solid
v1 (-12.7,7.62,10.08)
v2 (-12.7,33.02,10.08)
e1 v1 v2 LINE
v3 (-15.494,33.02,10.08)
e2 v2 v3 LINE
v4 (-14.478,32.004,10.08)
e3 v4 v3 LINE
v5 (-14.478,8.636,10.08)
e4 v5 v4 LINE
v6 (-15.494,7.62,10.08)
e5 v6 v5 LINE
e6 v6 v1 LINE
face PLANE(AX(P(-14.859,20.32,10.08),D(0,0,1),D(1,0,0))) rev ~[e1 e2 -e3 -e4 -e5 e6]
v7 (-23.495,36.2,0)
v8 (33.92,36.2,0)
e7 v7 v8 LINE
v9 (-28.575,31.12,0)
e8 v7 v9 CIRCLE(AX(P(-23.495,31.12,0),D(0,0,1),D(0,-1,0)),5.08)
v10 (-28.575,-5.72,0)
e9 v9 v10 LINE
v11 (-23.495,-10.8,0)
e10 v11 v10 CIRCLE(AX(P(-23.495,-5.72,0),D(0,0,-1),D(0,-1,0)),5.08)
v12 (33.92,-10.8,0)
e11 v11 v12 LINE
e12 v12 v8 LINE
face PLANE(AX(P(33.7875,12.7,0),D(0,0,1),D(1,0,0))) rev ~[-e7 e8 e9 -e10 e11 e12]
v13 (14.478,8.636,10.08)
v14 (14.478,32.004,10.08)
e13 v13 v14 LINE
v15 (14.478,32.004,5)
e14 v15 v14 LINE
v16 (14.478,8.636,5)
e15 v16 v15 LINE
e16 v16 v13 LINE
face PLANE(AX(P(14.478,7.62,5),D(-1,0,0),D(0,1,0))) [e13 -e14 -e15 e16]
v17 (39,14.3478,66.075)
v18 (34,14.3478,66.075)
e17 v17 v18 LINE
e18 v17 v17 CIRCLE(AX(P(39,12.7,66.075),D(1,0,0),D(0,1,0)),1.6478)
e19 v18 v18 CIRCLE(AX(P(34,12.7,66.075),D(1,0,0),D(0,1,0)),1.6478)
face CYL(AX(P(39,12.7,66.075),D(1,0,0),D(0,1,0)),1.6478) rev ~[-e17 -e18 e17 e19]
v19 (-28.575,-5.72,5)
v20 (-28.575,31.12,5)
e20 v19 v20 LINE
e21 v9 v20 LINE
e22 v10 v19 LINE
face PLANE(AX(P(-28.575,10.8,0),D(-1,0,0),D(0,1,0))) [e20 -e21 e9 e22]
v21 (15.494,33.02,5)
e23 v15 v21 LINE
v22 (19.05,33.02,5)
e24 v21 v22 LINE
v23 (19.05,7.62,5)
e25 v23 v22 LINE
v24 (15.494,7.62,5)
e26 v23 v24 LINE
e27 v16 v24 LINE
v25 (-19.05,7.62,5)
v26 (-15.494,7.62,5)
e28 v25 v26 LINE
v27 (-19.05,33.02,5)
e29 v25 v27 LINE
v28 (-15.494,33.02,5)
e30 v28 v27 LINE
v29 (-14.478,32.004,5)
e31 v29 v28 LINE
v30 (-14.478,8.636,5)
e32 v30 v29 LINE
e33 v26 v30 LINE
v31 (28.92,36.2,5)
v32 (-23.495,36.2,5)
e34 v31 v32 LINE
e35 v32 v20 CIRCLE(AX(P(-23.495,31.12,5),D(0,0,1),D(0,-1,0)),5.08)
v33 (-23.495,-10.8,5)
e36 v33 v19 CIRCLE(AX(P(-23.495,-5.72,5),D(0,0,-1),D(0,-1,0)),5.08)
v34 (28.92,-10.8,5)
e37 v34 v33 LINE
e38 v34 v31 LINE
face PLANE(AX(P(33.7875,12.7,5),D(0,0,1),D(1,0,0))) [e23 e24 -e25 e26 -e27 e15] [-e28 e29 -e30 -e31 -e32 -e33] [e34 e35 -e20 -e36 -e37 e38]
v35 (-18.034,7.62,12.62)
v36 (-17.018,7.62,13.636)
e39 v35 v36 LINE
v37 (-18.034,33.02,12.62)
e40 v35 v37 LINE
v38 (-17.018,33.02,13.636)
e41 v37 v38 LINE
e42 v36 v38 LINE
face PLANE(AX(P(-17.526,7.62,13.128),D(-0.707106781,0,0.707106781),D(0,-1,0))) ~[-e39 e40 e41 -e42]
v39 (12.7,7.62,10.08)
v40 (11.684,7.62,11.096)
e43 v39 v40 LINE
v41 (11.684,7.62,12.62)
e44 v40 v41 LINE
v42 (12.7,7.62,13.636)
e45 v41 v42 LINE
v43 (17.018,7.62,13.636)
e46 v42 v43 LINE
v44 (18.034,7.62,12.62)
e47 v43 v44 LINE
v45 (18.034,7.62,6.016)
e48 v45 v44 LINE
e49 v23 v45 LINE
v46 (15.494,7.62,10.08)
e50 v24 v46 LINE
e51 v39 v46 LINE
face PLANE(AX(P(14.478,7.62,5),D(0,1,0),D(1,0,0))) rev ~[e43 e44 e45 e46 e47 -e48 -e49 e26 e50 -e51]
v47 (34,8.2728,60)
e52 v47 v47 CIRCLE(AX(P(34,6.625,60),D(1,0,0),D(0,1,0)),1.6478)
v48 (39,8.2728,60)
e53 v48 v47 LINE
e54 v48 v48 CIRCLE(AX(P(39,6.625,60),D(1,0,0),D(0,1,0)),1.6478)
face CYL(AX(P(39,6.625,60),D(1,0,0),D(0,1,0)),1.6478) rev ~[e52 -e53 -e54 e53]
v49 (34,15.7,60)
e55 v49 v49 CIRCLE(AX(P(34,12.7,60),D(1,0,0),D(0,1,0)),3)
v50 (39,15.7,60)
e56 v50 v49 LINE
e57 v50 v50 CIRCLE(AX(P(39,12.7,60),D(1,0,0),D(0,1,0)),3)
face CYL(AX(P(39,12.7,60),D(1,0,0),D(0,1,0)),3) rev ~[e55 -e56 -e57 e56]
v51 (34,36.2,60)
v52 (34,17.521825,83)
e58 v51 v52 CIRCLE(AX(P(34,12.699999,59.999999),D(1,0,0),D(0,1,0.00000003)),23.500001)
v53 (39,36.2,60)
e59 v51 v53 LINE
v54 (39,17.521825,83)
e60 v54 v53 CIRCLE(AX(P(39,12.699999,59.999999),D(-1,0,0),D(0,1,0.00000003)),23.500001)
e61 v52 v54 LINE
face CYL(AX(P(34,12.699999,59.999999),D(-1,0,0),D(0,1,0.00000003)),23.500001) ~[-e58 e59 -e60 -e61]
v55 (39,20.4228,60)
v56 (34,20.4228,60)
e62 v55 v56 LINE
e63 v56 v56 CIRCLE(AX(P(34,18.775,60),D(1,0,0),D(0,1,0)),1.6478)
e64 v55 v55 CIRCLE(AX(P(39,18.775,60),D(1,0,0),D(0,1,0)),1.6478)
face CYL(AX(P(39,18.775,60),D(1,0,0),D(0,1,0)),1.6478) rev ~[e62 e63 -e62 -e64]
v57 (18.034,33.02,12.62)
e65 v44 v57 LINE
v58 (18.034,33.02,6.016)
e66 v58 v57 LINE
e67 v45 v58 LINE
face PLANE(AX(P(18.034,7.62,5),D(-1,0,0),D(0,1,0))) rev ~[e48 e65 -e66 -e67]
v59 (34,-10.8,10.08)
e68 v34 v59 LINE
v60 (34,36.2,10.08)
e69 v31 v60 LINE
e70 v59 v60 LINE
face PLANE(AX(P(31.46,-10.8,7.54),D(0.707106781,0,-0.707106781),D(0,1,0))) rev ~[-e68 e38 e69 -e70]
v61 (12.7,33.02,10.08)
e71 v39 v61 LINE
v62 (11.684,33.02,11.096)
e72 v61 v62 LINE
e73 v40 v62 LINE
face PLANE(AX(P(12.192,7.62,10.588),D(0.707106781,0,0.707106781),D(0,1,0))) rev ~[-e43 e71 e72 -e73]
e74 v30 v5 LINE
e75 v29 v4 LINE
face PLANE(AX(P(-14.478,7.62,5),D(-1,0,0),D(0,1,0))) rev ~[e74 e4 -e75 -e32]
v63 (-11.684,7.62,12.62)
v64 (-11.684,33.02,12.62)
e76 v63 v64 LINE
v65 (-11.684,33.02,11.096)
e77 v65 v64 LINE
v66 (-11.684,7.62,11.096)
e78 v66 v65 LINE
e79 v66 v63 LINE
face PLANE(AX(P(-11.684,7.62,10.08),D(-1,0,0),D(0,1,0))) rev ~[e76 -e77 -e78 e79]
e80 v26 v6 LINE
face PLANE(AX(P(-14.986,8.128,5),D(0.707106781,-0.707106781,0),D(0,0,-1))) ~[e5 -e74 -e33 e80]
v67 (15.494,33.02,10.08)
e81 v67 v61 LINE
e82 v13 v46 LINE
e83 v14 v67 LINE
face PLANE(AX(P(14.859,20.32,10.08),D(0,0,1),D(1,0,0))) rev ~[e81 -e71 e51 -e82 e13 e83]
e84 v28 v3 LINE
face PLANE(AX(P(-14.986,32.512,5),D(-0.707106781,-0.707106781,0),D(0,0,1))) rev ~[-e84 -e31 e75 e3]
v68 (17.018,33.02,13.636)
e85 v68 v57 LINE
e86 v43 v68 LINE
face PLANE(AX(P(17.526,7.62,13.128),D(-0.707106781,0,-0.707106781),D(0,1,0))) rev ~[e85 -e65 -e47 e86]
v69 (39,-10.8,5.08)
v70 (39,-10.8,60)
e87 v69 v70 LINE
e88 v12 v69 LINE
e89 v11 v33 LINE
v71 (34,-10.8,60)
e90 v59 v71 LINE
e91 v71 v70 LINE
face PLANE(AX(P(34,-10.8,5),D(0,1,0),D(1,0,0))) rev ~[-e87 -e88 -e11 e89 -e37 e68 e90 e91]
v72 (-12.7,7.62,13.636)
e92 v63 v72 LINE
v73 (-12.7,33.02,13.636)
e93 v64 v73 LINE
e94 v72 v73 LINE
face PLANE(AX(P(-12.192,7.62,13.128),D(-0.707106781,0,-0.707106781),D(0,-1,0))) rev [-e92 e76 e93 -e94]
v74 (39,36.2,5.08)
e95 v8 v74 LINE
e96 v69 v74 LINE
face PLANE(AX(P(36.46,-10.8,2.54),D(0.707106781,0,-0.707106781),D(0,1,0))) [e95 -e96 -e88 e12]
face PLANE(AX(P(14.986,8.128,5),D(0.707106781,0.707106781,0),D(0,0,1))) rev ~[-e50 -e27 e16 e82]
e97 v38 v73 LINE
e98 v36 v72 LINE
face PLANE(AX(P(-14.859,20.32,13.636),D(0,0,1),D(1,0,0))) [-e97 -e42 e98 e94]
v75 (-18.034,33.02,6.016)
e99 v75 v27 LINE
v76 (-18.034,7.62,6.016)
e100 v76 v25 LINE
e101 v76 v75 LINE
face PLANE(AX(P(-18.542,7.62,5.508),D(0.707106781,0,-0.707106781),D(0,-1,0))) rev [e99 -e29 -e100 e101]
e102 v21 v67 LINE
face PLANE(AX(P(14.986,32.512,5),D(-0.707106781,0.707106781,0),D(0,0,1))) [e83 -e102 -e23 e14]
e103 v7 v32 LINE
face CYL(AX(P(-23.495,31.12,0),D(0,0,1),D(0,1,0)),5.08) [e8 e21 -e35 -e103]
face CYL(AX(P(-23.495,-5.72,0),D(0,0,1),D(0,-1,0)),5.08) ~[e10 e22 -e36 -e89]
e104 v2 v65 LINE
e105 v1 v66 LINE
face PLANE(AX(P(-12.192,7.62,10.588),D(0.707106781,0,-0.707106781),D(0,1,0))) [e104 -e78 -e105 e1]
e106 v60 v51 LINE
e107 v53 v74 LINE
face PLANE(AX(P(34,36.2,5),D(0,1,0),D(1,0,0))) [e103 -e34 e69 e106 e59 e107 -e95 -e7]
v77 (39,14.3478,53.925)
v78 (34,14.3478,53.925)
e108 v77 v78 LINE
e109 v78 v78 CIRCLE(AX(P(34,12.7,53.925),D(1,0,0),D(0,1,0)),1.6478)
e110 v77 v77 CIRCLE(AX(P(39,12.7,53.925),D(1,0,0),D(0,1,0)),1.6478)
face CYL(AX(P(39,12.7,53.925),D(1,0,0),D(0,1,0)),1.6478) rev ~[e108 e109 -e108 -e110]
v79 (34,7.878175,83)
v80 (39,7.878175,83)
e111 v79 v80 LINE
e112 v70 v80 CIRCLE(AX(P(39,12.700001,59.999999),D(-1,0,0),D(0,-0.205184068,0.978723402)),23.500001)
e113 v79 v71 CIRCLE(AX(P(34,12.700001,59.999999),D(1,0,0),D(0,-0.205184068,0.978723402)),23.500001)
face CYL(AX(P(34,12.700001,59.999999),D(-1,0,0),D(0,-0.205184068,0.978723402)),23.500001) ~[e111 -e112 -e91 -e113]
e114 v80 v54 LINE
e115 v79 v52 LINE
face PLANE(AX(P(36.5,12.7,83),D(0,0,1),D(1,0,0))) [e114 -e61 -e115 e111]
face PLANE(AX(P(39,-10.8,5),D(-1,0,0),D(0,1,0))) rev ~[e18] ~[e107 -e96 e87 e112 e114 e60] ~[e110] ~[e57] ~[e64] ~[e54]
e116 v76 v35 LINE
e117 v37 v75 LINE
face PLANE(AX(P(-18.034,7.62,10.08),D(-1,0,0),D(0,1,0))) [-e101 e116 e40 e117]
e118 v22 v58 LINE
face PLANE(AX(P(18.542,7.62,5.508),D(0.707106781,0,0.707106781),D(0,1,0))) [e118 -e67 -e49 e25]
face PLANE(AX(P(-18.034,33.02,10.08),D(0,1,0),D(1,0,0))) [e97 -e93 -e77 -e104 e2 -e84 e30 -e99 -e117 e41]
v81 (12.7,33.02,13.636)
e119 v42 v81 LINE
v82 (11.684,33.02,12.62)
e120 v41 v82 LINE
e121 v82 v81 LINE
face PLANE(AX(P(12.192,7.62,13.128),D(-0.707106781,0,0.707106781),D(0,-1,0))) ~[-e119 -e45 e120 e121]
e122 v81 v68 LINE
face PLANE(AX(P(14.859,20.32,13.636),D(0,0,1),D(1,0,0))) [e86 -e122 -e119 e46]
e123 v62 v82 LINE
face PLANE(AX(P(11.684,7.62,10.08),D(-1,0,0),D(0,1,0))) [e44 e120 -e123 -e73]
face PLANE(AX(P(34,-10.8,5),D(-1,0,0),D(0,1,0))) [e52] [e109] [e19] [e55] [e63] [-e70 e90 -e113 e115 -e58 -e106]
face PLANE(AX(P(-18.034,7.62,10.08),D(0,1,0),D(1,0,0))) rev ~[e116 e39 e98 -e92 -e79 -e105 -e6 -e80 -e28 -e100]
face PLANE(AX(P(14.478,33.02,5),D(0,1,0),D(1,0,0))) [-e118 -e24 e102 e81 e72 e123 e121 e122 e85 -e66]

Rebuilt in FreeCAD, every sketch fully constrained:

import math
import FreeCAD as App
import Part
import Sketcher
from FreeCAD import Vector


def edges_at(feature, points):
    """Names of the edges that pass closest to the given points."""
    edges = feature.Shape.Edges
    near = lambda p: min(range(len(edges)), key=lambda i: edges[i].distToShape(Part.Vertex(*p))[0])
    return sorted({f"Edge{near(p) + 1}" for p in points})

doc = App.newDocument("Part")
body = doc.addObject("PartDesign::Body", "Body")

# Sketch on XY plane
sketch1 = body.newObject("Sketcher::SketchObject", "Sketch")
sketch1.AttachmentSupport = (doc.getObject("XY_Plane"), [""])
sketch1.MapMode = "FlatFace"
sketch1.addGeometry([
    Part.LineSegment(Vector(-29, 11, 0), Vector(-29, -11, 0)),
    Part.LineSegment(Vector(-29, -11, 0), Vector(29, -11, 0)),
    Part.LineSegment(Vector(29, -11, 0), Vector(29, 11, 0)),
    Part.LineSegment(Vector(29, 11, 0), Vector(-29, 11, 0)),
], False)
sketch1.addConstraint([
    Sketcher.Constraint("Coincident", 0, 2, 1, 1),
    Sketcher.Constraint("Coincident", 1, 2, 2, 1),
    Sketcher.Constraint("Coincident", 2, 2, 3, 1),
    Sketcher.Constraint("Coincident", 3, 2, 0, 1),
    Sketcher.Constraint("Vertical", 0),
    Sketcher.Constraint("Horizontal", 1),
    Sketcher.Constraint("Vertical", 2),
    Sketcher.Constraint("Horizontal", 3),
    Sketcher.Constraint("Symmetric", 0, 2, 2, 2, -1, 1),
    Sketcher.Constraint("DistanceY", 0, 2, 0, 1, 21.6),
    Sketcher.Constraint("DistanceX", 1, 1, 1, 2, 57.15),
])
pad1 = body.newObject("PartDesign::Pad", "Pad")
pad1.Profile = sketch1
pad1.Length = 5

# Sketch on XY plane
sketch2 = body.newObject("Sketcher::SketchObject", "Sketch001")
sketch2.AttachmentSupport = (doc.getObject("XY_Plane"), [""])
sketch2.MapMode = "FlatFace"
sketch2.addGeometry([
    Part.LineSegment(Vector(-29, 36, 0), Vector(-29, 11, 0)),
    Part.LineSegment(Vector(-29, 11, 0), Vector(29, 11, 0)),
    Part.LineSegment(Vector(29, 11, 0), Vector(29, 36, 0)),
    Part.LineSegment(Vector(29, 36, 0), Vector(-29, 36, 0)),
], False)
sketch2.addConstraint([
    Sketcher.Constraint("Coincident", 0, 2, 1, 1),
    Sketcher.Constraint("Coincident", 1, 2, 2, 1),
    Sketcher.Constraint("Coincident", 2, 2, 3, 1),
    Sketcher.Constraint("Coincident", 3, 2, 0, 1),
    Sketcher.Constraint("Vertical", 0),
    Sketcher.Constraint("Horizontal", 1),
    Sketcher.Constraint("Vertical", 2),
    Sketcher.Constraint("Horizontal", 3),
    Sketcher.Constraint("DistanceY", 0, 2, 0, 1, 25.4),
    Sketcher.Constraint("DistanceX", 1, 1, 1, 2, 57.15),
    Sketcher.Constraint("DistanceY", -1, 1, 0, 2, 10.8),
    Sketcher.Constraint("DistanceX", 0, 2, -1, 1, 28.575),
])
pad2 = body.newObject("PartDesign::Pad", "Pad001")
pad2.Profile = sketch2
pad2.Length = 5

# Sketch on XY plane
sketch3 = body.newObject("Sketcher::SketchObject", "Sketch002")
sketch3.AttachmentSupport = (doc.getObject("XY_Plane"), [""])
sketch3.MapMode = "FlatFace"
sketch3.AttachmentOffset = App.Placement(Vector(0, 0, 5), App.Rotation())
sketch3.addGeometry([
    Part.LineSegment(Vector(-18, 33, 0), Vector(-18, 7.6, 0)),  # 0
    Part.LineSegment(Vector(-18, 7.6, 0), Vector(-14.5, 7.6, 0)),  # 1
    Part.LineSegment(Vector(-14.5, 7.6, 0), Vector(-14.5, 33, 0)),  # 2
    Part.LineSegment(Vector(-14.5, 33, 0), Vector(-18, 33, 0)),  # 3
    Part.LineSegment(Vector(14.5, 33, 0), Vector(14.5, 7.6, 0)),  # 4
    Part.LineSegment(Vector(14.5, 7.6, 0), Vector(18, 7.6, 0)),  # 5
    Part.LineSegment(Vector(18, 7.6, 0), Vector(18, 33, 0)),  # 6
    Part.LineSegment(Vector(18, 33, 0), Vector(14.5, 33, 0)),  # 7
], False)
sketch3.addConstraint([
    Sketcher.Constraint("Coincident", 0, 2, 1, 1),
    Sketcher.Constraint("Coincident", 1, 2, 2, 1),
    Sketcher.Constraint("Coincident", 2, 2, 3, 1),
    Sketcher.Constraint("Coincident", 3, 2, 0, 1),
    Sketcher.Constraint("Coincident", 4, 2, 5, 1),
    Sketcher.Constraint("Coincident", 5, 2, 6, 1),
    Sketcher.Constraint("Coincident", 6, 2, 7, 1),
    Sketcher.Constraint("Coincident", 7, 2, 4, 1),
    Sketcher.Constraint("Vertical", 0),
    Sketcher.Constraint("Horizontal", 1),
    Sketcher.Constraint("Vertical", 2),
    Sketcher.Constraint("Horizontal", 3),
    Sketcher.Constraint("Vertical", 4),
    Sketcher.Constraint("Horizontal", 5),
    Sketcher.Constraint("Vertical", 6),
    Sketcher.Constraint("Horizontal", 7),
    Sketcher.Constraint("Symmetric", 1, 2, 4, 2, -2),
    Sketcher.Constraint("Symmetric", 3, 2, 6, 2, -2),
    Sketcher.Constraint("DistanceY", 0, 2, 0, 1, 25.4),
    Sketcher.Constraint("DistanceX", 1, 1, 1, 2, 3.556),
    Sketcher.Constraint("DistanceY", -1, 1, 0, 2, 7.62),
    Sketcher.Constraint("DistanceX", 0, 2, -1, 1, 18.034),
])
pad3 = body.newObject("PartDesign::Pad", "Pad002")
pad3.Profile = sketch3
pad3.Length = 5.08

# Sketch on XY plane
sketch4 = body.newObject("Sketcher::SketchObject", "Sketch003")
sketch4.AttachmentSupport = (doc.getObject("XY_Plane"), [""])
sketch4.MapMode = "FlatFace"
sketch4.AttachmentOffset = App.Placement(Vector(0, 0, 10.08), App.Rotation())
sketch4.addGeometry([
    Part.LineSegment(Vector(-18, 33, 0), Vector(-18, 8, 0)),  # 0
    Part.LineSegment(Vector(-18, 8, 0), Vector(-12, 8, 0)),  # 1
    Part.LineSegment(Vector(-12, 8, 0), Vector(-12, 33, 0)),  # 2
    Part.LineSegment(Vector(-12, 33, 0), Vector(-18, 33, 0)),  # 3
    Part.LineSegment(Vector(12, 33, 0), Vector(12, 8, 0)),  # 4
    Part.LineSegment(Vector(12, 8, 0), Vector(18, 8, 0)),  # 5
    Part.LineSegment(Vector(18, 8, 0), Vector(18, 33, 0)),  # 6
    Part.LineSegment(Vector(18, 33, 0), Vector(12, 33, 0)),  # 7
], False)
sketch4.addConstraint([
    Sketcher.Constraint("Coincident", 0, 2, 1, 1),
    Sketcher.Constraint("Coincident", 1, 2, 2, 1),
    Sketcher.Constraint("Coincident", 2, 2, 3, 1),
    Sketcher.Constraint("Coincident", 3, 2, 0, 1),
    Sketcher.Constraint("Coincident", 4, 2, 5, 1),
    Sketcher.Constraint("Coincident", 5, 2, 6, 1),
    Sketcher.Constraint("Coincident", 6, 2, 7, 1),
    Sketcher.Constraint("Coincident", 7, 2, 4, 1),
    Sketcher.Constraint("Vertical", 0),
    Sketcher.Constraint("Horizontal", 1),
    Sketcher.Constraint("Vertical", 2),
    Sketcher.Constraint("Horizontal", 3),
    Sketcher.Constraint("Vertical", 4),
    Sketcher.Constraint("Horizontal", 5),
    Sketcher.Constraint("Vertical", 6),
    Sketcher.Constraint("Horizontal", 7),
    Sketcher.Constraint("Symmetric", 1, 2, 4, 2, -2),
    Sketcher.Constraint("Symmetric", 3, 2, 6, 2, -2),
    Sketcher.Constraint("DistanceY", 0, 2, 0, 1, 25.4),
    Sketcher.Constraint("DistanceX", 1, 1, 1, 2, 6.35),
    Sketcher.Constraint("DistanceY", -1, 1, 0, 2, 7.62),
    Sketcher.Constraint("DistanceX", 0, 2, -1, 1, 18.034),
])
pad4 = body.newObject("PartDesign::Pad", "Pad003")
pad4.Profile = sketch4
pad4.Length = 3.556
doc.recompute()

chamfer = body.newObject("PartDesign::Chamfer", "Chamfer")
chamfer.Base = (pad4, edges_at(pad4, [
    (-11.684, 20.32, 13.636),
    (-11.684, 20.32, 10.08),
    (11.684, 20.32, 13.636),
    (11.684, 20.32, 10.08),
    (18.034, 20.32, 13.636),
    (-18.034, 20.32, 13.636),
    (18.034, 20.32, 5),
    (-18.034, 20.32, 5),
    (14.478, 33.02, 7.54),
    (-14.478, 33.02, 7.54),
    (-14.478, 7.62, 7.54),
    (14.478, 7.62, 7.54),
]))
chamfer.Size = 1.016

# Sketch on XY plane
sketch5 = body.newObject("Sketcher::SketchObject", "Sketch004")
sketch5.AttachmentSupport = (doc.getObject("XY_Plane"), [""])
sketch5.MapMode = "FlatFace"
sketch5.AttachmentOffset = App.Placement(Vector(0, 0, 5), App.Rotation())
sketch5.addGeometry([
    Part.LineSegment(Vector(29, 36, 0), Vector(29, -11, 0)),
    Part.LineSegment(Vector(29, -11, 0), Vector(39, -11, 0)),
    Part.LineSegment(Vector(39, -11, 0), Vector(39, 36, 0)),
    Part.LineSegment(Vector(39, 36, 0), Vector(29, 36, 0)),
], False)
sketch5.addConstraint([
    Sketcher.Constraint("Coincident", 0, 2, 1, 1),
    Sketcher.Constraint("Coincident", 1, 2, 2, 1),
    Sketcher.Constraint("Coincident", 2, 2, 3, 1),
    Sketcher.Constraint("Coincident", 3, 2, 0, 1),
    Sketcher.Constraint("Vertical", 0),
    Sketcher.Constraint("Horizontal", 1),
    Sketcher.Constraint("Vertical", 2),
    Sketcher.Constraint("Horizontal", 3),
    Sketcher.Constraint("DistanceY", 0, 2, 0, 1, 47.0),
    Sketcher.Constraint("DistanceX", -1, 1, 1, 2, 39.0),
    Sketcher.Constraint("DistanceY", 0, 2, -1, 1, 10.8),
    Sketcher.Constraint("DistanceX", 1, 1, 1, 2, 10.425),
])
pad5 = body.newObject("PartDesign::Pad", "Pad004")
pad5.Profile = sketch5
pad5.Length = 5
pad5.Reversed = True

# Sketch on XY plane
sketch6 = body.newObject("Sketcher::SketchObject", "Sketch005")
sketch6.AttachmentSupport = (doc.getObject("XY_Plane"), [""])
sketch6.MapMode = "FlatFace"
sketch6.AttachmentOffset = App.Placement(Vector(0, 0, 5), App.Rotation())
sketch6.addGeometry([
    Part.LineSegment(Vector(34, 36, 0), Vector(34, -11, 0)),
    Part.LineSegment(Vector(34, -11, 0), Vector(39, -11, 0)),
    Part.LineSegment(Vector(39, -11, 0), Vector(39, 36, 0)),
    Part.LineSegment(Vector(39, 36, 0), Vector(34, 36, 0)),
], False)
sketch6.addConstraint([
    Sketcher.Constraint("Coincident", 0, 2, 1, 1),
    Sketcher.Constraint("Coincident", 1, 2, 2, 1),
    Sketcher.Constraint("Coincident", 2, 2, 3, 1),
    Sketcher.Constraint("Coincident", 3, 2, 0, 1),
    Sketcher.Constraint("Vertical", 0),
    Sketcher.Constraint("Horizontal", 1),
    Sketcher.Constraint("Vertical", 2),
    Sketcher.Constraint("Horizontal", 3),
    Sketcher.Constraint("DistanceX", 1, 1, 1, 2, 5.0),
    Sketcher.Constraint("DistanceY", 0, 2, 0, 1, 47.0),
    Sketcher.Constraint("DistanceX", -1, 1, 0, 2, 34.0),
    Sketcher.Constraint("DistanceY", 0, 2, -1, 1, 10.8),
])
pad6 = body.newObject("PartDesign::Pad", "Pad005")
pad6.Profile = sketch6
pad6.Length = 78

# Sketch on YZ plane
sketch7 = body.newObject("Sketcher::SketchObject", "Sketch006")
sketch7.AttachmentSupport = (doc.getObject("YZ_Plane"), [""])
sketch7.MapMode = "FlatFace"
sketch7.AttachmentOffset = App.Placement(Vector(0, 0, 39), App.Rotation())
sketch7.addGeometry([
    Part.Circle(Vector(6.6, 60, 0), Vector(0, 0, 1), 1.6),  # 0
    Part.Circle(Vector(12.7, 53.9, 0), Vector(0, 0, 1), 1.6),  # 1
    Part.Circle(Vector(18.8, 60, 0), Vector(0, 0, 1), 1.6),  # 2
    Part.Circle(Vector(12.7, 66.1, 0), Vector(0, 0, 1), 1.6),  # 3
    Part.Circle(Vector(12.7, 60, 0), Vector(0, 0, 1), 3),  # 4
], False)
sketch7.addConstraint([
    Sketcher.Constraint("Equal", 0, 1),
    Sketcher.Constraint("Equal", 1, 2),
    Sketcher.Constraint("Equal", 2, 3),
    Sketcher.Constraint("Horizontal", 0, 3, 2, 3),
    Sketcher.Constraint("Horizontal", 2, 3, 4, 3),
    Sketcher.Constraint("Vertical", 1, 3, 3, 3),
    Sketcher.Constraint("Vertical", 3, 3, 4, 3),
    Sketcher.Constraint("Diameter", 4, 6.0),
    Sketcher.Constraint("DistanceY", -1, 1, 0, 3, 60.0),
    Sketcher.Constraint("Diameter", 0, 3.2956),
    Sketcher.Constraint("DistanceX", -1, 1, 1, 3, 12.7),
    Sketcher.Constraint("DistanceX", 0, 3, 2, 3, 12.15),
    Sketcher.Constraint("DistanceY", 1, 3, 3, 3, 12.15),
    Sketcher.Constraint("DistanceX", -1, 1, 0, 3, 6.625),
    Sketcher.Constraint("DistanceY", -1, 1, 1, 3, 53.925),
])
pocket1 = body.newObject("PartDesign::Pocket", "Pocket")
pocket1.Profile = sketch7
pocket1.Length = 25.4

# Sketch on YZ plane
sketch8 = body.newObject("Sketcher::SketchObject", "Sketch007")
sketch8.AttachmentSupport = (doc.getObject("YZ_Plane"), [""])
sketch8.MapMode = "FlatFace"
sketch8.AttachmentOffset = App.Placement(Vector(0, 0, 34), App.Rotation())
sketch8.addGeometry([
    Part.ArcOfCircle(Part.Circle(Vector(13, 60, 0), Vector(0, 0, 1), 24), math.radians(0), math.radians(78)),  # 0
    Part.LineSegment(Vector(18, 83, 0), Vector(36, 83, 0)),  # 1
    Part.LineSegment(Vector(36, 83, 0), Vector(36, 60, 0)),  # 2
    Part.LineSegment(Vector(18, 83, 0), Vector(8, 83, 0)),  # 3
    Part.ArcOfCircle(Part.Circle(Vector(13, 60, 0), Vector(0, 0, 1), 23), math.radians(78), math.radians(102)),  # 4
    Part.ArcOfCircle(Part.Circle(Vector(13, 60, 0), Vector(0, 0, 1), 24), math.radians(102), math.radians(180)),  # 5
    Part.LineSegment(Vector(-11, 60, 0), Vector(-11, 83, 0)),  # 6
    Part.LineSegment(Vector(-11, 83, 0), Vector(8, 83, 0)),  # 7
], False)
sketch8.addConstraint([
    Sketcher.Constraint("Coincident", 0, 2, 1, 1),
    Sketcher.Constraint("Coincident", 1, 2, 2, 1),
    Sketcher.Constraint("Tangent", 2, 2, 0, 1),
    Sketcher.Constraint("Coincident", 3, 1, 4, 1),
    Sketcher.Constraint("Coincident", 4, 2, 3, 2),
    Sketcher.Constraint("Tangent", 5, 2, 6, 1),
    Sketcher.Constraint("Coincident", 6, 2, 7, 1),
    Sketcher.Constraint("Coincident", 7, 2, 5, 1),
    Sketcher.Constraint("Horizontal", 1),
    Sketcher.Constraint("Vertical", 2),
    Sketcher.Constraint("Horizontal", 3),
    Sketcher.Constraint("Vertical", 6),
    Sketcher.Constraint("Horizontal", 7),
    Sketcher.Constraint("Coincident", 4, 3, 0, 3),
    Sketcher.Constraint("Coincident", 5, 3, 0, 3),
    Sketcher.Constraint("Coincident", 3, 1, 0, 2),
    Sketcher.Constraint("Coincident", 7, 2, 4, 2),
    Sketcher.Constraint("Radius", 0, 23.500001),
    Sketcher.Constraint("DistanceY", 2, 2, 2, 1, 23.0),
    Sketcher.Constraint("DistanceY", -1, 1, 0, 3, 59.999999),
    Sketcher.Constraint("DistanceX", -1, 1, 0, 3, 12.699999),
])
pocket2 = body.newObject("PartDesign::Pocket", "Pocket001")
pocket2.Profile = sketch8
pocket2.Length = 25.4
pocket2.Reversed = True
doc.recompute()

fillet = body.newObject("PartDesign::Fillet", "Fillet")
fillet.Base = (pocket2, edges_at(pocket2, [(-28.575, -10.8, 2.5), (-28.575, 36.2, 2.5)]))
fillet.Radius = 5.08
doc.recompute()

chamfer2 = body.newObject("PartDesign::Chamfer", "Chamfer001")
chamfer2.Base = (fillet, edges_at(fillet, [(34, 12.7, 5), (39, 12.7, 0)]))
chamfer2.Size = 5.08

doc.recompute()
